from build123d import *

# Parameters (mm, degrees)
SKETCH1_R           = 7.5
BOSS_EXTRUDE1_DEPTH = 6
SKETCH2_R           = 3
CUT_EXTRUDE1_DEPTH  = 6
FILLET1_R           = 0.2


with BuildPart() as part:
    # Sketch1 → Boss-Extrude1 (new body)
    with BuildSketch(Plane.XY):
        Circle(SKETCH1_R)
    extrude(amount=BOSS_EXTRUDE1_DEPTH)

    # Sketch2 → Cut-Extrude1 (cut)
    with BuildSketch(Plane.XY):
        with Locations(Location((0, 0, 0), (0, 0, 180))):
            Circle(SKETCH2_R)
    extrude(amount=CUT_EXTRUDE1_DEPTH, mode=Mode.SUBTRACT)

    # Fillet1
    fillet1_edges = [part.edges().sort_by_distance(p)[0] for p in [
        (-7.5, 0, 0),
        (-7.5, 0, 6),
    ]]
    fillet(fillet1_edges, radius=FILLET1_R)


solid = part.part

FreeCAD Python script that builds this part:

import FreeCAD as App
import Part
import Sketcher
from FreeCAD import Vector


def edges_at(feature, points):
    """Names of the edges that pass closest to the given points."""
    edges = feature.Shape.Edges
    near = lambda p: min(range(len(edges)), key=lambda i: edges[i].distToShape(Part.Vertex(*p))[0])
    return sorted({f"Edge{near(p) + 1}" for p in points})

doc = App.newDocument("Part")
body = doc.addObject("PartDesign::Body", "Body")

# Sketch on XY plane
sketch1 = body.newObject("Sketcher::SketchObject", "Sketch")
sketch1.AttachmentSupport = (doc.getObject("XY_Plane"), [""])
sketch1.MapMode = "FlatFace"
sketch1.addGeometry(Part.Circle(Vector(0, 0, 0), Vector(0, 0, 1), 8), False)
sketch1.addConstraint([
    Sketcher.Constraint("Coincident", 0, 3, -1, 1),
    Sketcher.Constraint("Diameter", 0, 15.0),
])
pad1 = body.newObject("PartDesign::Pad", "Pad")
pad1.Profile = sketch1
pad1.Length = 6

# Sketch on XY plane
sketch2 = body.newObject("Sketcher::SketchObject", "Sketch001")
sketch2.AttachmentSupport = (doc.getObject("XY_Plane"), [""])
sketch2.MapMode = "FlatFace"
sketch2.addGeometry(Part.Circle(Vector(0, 0, 0), Vector(0, 0, 1), 3), False)
sketch2.addConstraint([
    Sketcher.Constraint("Coincident", 0, 3, -1, 1),
    Sketcher.Constraint("Diameter", 0, 6.0),
])
pocket1 = body.newObject("PartDesign::Pocket", "Pocket")
pocket1.Profile = sketch2
pocket1.Length = 6
pocket1.Reversed = True
doc.recompute()

fillet = body.newObject("PartDesign::Fillet", "Fillet")
fillet.Base = (pocket1, edges_at(pocket1, [(-7.5, 0, 0), (-7.5, 0, 6)]))
fillet.Radius = 0.2

doc.recompute()
